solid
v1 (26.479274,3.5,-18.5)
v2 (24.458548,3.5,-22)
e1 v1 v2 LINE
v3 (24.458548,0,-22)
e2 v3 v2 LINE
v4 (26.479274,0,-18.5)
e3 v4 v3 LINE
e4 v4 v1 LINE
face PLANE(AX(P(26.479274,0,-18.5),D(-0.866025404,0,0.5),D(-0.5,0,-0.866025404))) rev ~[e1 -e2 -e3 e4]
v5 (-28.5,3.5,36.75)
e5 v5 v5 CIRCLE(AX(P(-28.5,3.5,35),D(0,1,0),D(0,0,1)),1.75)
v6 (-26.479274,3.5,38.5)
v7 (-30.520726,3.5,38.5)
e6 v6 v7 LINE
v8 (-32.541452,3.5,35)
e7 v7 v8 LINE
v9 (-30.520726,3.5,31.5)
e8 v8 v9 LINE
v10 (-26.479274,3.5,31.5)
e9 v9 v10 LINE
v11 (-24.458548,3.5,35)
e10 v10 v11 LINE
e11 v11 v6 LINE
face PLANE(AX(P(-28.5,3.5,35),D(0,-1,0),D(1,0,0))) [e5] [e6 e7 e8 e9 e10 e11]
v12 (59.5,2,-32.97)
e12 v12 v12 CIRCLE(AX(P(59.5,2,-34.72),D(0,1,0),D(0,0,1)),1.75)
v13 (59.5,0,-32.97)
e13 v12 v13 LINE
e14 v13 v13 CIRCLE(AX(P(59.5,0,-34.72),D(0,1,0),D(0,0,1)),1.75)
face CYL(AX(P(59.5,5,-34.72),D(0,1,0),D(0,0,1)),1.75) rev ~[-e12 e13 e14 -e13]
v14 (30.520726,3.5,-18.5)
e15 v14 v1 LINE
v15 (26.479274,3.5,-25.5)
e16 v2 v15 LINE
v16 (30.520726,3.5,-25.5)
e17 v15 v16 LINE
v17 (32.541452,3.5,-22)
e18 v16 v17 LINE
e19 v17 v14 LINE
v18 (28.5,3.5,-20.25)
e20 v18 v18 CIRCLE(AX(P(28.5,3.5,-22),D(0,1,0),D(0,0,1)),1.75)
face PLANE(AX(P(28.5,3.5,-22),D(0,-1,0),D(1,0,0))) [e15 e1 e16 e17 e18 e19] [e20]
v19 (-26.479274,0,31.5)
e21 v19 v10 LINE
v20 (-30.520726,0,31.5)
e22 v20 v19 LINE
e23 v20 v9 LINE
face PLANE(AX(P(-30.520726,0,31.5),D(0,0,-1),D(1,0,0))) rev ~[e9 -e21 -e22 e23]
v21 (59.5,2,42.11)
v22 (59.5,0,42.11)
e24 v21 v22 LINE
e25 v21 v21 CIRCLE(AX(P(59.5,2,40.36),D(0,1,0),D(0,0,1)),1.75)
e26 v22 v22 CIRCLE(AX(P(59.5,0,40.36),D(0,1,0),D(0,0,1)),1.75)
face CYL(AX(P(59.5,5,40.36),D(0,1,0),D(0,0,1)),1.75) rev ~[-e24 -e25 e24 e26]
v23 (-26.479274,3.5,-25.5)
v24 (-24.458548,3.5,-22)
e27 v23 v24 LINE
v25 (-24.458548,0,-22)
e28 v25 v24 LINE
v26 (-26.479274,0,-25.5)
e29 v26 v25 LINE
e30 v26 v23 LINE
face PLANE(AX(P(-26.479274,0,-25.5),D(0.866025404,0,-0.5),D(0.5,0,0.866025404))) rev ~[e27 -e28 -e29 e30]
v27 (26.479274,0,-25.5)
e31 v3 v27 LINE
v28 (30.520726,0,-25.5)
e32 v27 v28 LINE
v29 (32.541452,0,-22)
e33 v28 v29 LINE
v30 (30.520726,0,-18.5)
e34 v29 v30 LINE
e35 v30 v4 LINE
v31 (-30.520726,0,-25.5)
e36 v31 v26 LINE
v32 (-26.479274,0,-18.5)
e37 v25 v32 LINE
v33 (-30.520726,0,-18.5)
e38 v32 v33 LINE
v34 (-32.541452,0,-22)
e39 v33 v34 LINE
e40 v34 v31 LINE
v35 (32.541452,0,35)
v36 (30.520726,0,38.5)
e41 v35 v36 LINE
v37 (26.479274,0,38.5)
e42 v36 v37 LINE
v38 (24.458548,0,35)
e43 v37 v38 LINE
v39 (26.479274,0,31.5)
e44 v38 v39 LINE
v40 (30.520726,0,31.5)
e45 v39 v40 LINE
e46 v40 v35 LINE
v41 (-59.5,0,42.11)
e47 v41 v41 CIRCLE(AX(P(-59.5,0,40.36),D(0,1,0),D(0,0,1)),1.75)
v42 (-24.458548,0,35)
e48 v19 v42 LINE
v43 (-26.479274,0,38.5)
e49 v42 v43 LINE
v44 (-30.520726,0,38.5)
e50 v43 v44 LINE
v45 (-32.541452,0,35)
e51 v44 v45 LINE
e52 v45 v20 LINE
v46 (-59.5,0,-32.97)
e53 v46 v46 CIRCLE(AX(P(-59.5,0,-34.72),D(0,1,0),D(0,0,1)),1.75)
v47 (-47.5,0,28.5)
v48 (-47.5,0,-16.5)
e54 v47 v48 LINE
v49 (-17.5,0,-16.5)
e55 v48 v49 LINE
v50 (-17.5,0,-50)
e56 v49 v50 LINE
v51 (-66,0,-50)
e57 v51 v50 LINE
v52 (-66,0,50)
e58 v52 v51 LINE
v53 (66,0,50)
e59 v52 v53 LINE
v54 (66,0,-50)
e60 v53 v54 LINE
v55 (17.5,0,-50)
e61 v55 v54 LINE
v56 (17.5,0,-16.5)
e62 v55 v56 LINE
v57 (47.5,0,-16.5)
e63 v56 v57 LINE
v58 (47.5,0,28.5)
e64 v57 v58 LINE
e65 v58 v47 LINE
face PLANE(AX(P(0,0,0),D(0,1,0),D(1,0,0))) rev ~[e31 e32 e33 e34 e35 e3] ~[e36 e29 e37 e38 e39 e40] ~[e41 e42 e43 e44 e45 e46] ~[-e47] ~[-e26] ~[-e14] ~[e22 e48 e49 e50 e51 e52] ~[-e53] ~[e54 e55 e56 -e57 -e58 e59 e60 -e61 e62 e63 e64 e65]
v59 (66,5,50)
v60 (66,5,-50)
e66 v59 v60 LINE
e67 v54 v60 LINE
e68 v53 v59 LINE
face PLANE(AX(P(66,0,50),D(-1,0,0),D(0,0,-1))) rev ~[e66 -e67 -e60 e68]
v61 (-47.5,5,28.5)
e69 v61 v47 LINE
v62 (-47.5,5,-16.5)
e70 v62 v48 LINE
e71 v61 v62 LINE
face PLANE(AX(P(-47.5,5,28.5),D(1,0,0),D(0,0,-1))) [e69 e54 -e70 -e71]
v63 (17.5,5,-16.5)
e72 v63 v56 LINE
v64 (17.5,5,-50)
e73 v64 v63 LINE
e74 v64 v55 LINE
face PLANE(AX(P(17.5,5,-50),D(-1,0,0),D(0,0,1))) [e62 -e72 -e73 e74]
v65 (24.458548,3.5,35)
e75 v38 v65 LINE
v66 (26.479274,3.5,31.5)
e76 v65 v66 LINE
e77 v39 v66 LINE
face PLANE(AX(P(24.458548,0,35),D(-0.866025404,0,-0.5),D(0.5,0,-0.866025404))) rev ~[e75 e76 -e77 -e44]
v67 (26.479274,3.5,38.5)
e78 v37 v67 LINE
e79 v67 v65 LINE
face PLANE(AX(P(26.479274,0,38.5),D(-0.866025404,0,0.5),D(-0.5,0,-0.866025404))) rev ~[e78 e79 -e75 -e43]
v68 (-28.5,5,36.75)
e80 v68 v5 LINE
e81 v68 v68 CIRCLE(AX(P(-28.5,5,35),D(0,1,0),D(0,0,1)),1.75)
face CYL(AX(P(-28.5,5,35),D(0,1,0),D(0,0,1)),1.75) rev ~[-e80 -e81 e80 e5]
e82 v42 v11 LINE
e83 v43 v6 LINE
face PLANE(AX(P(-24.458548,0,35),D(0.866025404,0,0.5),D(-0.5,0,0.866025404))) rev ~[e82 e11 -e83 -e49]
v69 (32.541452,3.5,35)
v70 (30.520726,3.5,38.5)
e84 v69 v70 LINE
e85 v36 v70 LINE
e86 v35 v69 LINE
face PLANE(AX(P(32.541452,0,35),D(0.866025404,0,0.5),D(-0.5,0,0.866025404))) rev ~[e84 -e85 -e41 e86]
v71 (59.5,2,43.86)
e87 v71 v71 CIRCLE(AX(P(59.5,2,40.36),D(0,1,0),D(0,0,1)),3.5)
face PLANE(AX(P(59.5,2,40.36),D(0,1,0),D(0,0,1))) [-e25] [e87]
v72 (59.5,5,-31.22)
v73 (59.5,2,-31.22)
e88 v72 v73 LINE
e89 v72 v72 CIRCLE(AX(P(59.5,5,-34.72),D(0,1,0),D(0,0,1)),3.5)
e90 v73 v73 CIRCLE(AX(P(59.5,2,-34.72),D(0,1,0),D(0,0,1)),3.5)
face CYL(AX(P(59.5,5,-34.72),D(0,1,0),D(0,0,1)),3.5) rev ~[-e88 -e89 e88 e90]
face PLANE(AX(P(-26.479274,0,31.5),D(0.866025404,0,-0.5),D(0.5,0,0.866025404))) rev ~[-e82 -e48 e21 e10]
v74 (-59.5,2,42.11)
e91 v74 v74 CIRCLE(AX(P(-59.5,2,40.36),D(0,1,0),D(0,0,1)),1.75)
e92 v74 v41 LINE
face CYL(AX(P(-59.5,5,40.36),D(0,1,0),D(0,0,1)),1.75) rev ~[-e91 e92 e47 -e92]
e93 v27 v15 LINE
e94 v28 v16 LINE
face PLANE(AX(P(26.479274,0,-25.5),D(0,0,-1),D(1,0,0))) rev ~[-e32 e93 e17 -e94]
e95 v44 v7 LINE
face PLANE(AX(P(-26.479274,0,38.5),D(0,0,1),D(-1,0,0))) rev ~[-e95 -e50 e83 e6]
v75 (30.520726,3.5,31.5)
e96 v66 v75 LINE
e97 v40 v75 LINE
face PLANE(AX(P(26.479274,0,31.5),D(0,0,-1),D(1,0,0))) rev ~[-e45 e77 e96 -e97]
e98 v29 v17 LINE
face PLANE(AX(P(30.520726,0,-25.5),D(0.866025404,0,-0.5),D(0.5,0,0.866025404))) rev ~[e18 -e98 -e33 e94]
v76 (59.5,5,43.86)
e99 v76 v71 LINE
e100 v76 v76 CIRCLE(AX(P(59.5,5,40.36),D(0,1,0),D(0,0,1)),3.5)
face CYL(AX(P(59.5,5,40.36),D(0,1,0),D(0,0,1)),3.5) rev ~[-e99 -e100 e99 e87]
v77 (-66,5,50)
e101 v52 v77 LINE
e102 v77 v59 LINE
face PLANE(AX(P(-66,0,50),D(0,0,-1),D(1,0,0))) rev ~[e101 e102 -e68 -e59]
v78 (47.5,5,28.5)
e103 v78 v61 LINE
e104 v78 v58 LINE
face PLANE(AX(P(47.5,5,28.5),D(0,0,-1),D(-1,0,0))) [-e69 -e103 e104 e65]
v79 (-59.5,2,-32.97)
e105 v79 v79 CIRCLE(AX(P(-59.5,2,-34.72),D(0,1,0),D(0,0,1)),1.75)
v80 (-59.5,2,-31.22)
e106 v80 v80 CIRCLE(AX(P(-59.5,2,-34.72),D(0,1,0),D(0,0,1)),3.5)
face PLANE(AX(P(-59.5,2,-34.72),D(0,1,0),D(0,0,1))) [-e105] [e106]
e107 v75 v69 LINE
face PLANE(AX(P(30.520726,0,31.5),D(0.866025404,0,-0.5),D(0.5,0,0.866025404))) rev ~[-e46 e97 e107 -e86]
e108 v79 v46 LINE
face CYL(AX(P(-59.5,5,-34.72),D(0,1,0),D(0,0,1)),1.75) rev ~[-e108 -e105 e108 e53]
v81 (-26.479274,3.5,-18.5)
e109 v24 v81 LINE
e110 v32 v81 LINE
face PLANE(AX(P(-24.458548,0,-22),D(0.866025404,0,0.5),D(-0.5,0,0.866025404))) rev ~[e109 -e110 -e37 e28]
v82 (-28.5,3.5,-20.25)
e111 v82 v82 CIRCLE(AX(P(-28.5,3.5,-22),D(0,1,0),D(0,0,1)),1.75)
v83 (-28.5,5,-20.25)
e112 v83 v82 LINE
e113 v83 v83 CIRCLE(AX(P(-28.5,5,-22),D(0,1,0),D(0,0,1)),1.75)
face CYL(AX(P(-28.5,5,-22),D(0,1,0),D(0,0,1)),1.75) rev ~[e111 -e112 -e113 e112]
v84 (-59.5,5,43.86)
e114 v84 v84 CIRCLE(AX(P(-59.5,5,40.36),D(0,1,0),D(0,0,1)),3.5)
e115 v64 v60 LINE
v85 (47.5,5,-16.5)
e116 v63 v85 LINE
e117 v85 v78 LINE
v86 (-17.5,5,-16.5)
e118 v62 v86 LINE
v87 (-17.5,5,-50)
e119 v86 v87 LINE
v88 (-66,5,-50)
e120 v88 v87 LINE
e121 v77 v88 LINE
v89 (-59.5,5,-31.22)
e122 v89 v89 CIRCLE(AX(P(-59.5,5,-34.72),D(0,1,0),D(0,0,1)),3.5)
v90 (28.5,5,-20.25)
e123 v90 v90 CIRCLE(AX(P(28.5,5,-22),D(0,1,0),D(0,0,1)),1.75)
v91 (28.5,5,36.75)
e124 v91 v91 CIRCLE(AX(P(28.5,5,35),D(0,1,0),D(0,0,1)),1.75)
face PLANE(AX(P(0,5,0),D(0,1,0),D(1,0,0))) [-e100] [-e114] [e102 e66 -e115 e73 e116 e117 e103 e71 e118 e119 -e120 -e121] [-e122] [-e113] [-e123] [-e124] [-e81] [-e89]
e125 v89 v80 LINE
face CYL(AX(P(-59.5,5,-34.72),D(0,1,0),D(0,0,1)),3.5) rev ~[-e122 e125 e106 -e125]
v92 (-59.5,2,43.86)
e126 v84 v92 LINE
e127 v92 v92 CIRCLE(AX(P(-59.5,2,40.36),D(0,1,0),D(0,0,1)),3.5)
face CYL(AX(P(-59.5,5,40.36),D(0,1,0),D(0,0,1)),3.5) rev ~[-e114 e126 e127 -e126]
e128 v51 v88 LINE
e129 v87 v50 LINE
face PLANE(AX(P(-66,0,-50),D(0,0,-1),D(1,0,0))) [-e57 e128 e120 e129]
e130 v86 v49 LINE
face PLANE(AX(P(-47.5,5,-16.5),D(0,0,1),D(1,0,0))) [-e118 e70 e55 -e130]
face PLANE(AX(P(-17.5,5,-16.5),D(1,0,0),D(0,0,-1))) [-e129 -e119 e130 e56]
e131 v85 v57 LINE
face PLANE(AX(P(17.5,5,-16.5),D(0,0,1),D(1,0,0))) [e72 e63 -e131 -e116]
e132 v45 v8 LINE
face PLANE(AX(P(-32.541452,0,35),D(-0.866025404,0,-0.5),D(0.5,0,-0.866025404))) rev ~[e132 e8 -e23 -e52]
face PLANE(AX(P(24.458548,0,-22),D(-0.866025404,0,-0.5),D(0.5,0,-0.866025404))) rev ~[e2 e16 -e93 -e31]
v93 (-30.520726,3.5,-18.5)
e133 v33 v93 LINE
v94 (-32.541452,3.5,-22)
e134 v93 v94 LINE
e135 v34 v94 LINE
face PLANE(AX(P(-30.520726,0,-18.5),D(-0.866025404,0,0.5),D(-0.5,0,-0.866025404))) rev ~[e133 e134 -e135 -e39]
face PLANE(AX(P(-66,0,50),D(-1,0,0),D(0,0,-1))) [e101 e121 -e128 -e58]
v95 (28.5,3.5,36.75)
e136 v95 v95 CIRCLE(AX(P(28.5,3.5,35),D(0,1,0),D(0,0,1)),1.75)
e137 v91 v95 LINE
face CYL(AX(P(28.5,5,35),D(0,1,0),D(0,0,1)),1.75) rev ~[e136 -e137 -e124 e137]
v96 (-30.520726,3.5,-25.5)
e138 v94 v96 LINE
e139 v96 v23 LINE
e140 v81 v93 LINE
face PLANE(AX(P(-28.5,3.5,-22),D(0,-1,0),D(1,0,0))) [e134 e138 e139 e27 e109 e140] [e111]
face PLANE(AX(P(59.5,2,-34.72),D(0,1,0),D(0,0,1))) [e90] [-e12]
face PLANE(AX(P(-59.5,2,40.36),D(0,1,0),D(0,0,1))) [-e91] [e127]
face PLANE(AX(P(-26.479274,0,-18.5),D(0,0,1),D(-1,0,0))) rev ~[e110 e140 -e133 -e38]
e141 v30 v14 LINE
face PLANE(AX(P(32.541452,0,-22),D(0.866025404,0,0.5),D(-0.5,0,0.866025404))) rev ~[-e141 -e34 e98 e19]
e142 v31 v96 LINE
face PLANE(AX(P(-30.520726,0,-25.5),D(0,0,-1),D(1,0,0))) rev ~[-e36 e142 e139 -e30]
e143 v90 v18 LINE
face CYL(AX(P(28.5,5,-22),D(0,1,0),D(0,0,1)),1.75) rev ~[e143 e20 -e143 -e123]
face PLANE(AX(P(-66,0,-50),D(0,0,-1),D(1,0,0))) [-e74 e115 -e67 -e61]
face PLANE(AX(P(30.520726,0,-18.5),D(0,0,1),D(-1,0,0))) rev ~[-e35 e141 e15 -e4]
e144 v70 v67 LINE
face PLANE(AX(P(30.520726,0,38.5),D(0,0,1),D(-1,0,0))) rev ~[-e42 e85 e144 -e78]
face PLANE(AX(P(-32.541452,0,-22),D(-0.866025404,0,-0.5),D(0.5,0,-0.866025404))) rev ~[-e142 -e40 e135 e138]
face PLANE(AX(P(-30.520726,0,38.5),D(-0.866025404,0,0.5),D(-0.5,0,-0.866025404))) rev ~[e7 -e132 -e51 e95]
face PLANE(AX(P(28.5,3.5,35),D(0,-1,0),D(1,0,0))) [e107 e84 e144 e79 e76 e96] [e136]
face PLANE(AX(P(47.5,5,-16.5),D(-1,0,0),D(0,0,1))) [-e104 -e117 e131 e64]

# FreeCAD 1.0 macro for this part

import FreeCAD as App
import Part
import Sketcher
Q = App.Units.Quantity


def add_polygon(sketch, points):
    """Adds a closed chain of lines whose ends are joined by coincident constraints."""
    first, n = sketch.GeometryCount, len(points)
    for a, b in zip(points, points[1:] + points[:1]):
        sketch.addGeometry(Part.LineSegment(App.Vector(*a, 0), App.Vector(*b, 0)), False)
    for i in range(n):
        sketch.addConstraint(Sketcher.Constraint("Coincident", first + i, 2, first + (i + 1) % n, 1))

doc = App.newDocument("Part")
body = doc.addObject("PartDesign::Body", "Body")

# Sketch on XZ plane
sketch1 = body.newObject("Sketcher::SketchObject", "Sketch")
sketch1.AttachmentSupport = (doc.getObject("XZ_Plane"), [""])
sketch1.MapMode = "FlatFace"
add_polygon(sketch1, [(-66, -50), (-66, 50), (66, 50), (66, -50)])  # lines 0-3
sketch1.addConstraint(Sketcher.Constraint("Vertical", 0))
sketch1.addConstraint(Sketcher.Constraint("Horizontal", 1))
sketch1.addConstraint(Sketcher.Constraint("Vertical", 2))
sketch1.addConstraint(Sketcher.Constraint("Horizontal", 3))
sketch1.addConstraint(Sketcher.Constraint("Symmetric", 0, 2, 2, 2, -1, 1))
sketch1.addConstraint(Sketcher.Constraint("DistanceX", 1, 1, 1, 2, 132.0))
sketch1.addConstraint(Sketcher.Constraint("DistanceY", 0, 1, 0, 2, 100.0))
pad1 = body.newObject("PartDesign::Pad", "Pad")
pad1.Profile = sketch1
pad1.Length = 5
pad1.Reversed = True

# Sketch on XZ plane
sketch2 = body.newObject("Sketcher::SketchObject", "Sketch001")
sketch2.AttachmentSupport = (doc.getObject("XZ_Plane"), [""])
sketch2.MapMode = "FlatFace"
sketch2.AttachmentOffset = App.Placement(App.Vector(0, 0, -5), App.Rotation())
sketch2.addGeometry(Part.Circle(App.Vector(-59.5, -34.7, 0), App.Vector(0, 0, 1), 1.8), False)
sketch2.addGeometry(Part.Circle(App.Vector(-59.5, 40.4, 0), App.Vector(0, 0, 1), 1.8), False)
sketch2.addGeometry(Part.Circle(App.Vector(59.5, 40.4, 0), App.Vector(0, 0, 1), 1.8), False)
sketch2.addGeometry(Part.Circle(App.Vector(59.5, -34.7, 0), App.Vector(0, 0, 1), 1.8), False)
sketch2.addConstraint(Sketcher.Constraint("Equal", 0, 1))
sketch2.addConstraint(Sketcher.Constraint("Equal", 1, 2))
sketch2.addConstraint(Sketcher.Constraint("Equal", 2, 3))
sketch2.addConstraint(Sketcher.Constraint("Symmetric", 1, 3, 2, 3, -2))
sketch2.addConstraint(Sketcher.Constraint("Symmetric", 0, 3, 3, 3, -2))
sketch2.addConstraint(Sketcher.Constraint("Vertical", 0, 3, 1, 3))
sketch2.addConstraint(Sketcher.Constraint("Diameter", 0, 3.5))
sketch2.addConstraint(Sketcher.Constraint("DistanceX", 1, 3, 2, 3, 119.0))
sketch2.addConstraint(Sketcher.Constraint("DistanceY", 0, 3, -1, 1, 34.72))
sketch2.addConstraint(Sketcher.Constraint("DistanceY", -1, 1, 1, 3, 40.36))
pocket1 = body.newObject("PartDesign::Pocket", "Pocket")
pocket1.Profile = sketch2
pocket1.Length = 56
pocket1.Reversed = True

# Sketch on XZ plane
sketch3 = body.newObject("Sketcher::SketchObject", "Sketch002")
sketch3.AttachmentSupport = (doc.getObject("XZ_Plane"), [""])
sketch3.MapMode = "FlatFace"
sketch3.AttachmentOffset = App.Placement(App.Vector(0, 0, -5), App.Rotation())
add_polygon(sketch3, [(18, -50), (-18, -50), (-18, -16), (-48, -16), (-48, 28), (48, 28), (48, -16), (18, -16)])  # lines 0-7
sketch3.addConstraint(Sketcher.Constraint("Horizontal", 0))
sketch3.addConstraint(Sketcher.Constraint("Vertical", 1))
sketch3.addConstraint(Sketcher.Constraint("Horizontal", 2))
sketch3.addConstraint(Sketcher.Constraint("Vertical", 3))
sketch3.addConstraint(Sketcher.Constraint("Horizontal", 4))
sketch3.addConstraint(Sketcher.Constraint("Vertical", 5))
sketch3.addConstraint(Sketcher.Constraint("Horizontal", 6))
sketch3.addConstraint(Sketcher.Constraint("Vertical", 7))
sketch3.addConstraint(Sketcher.Constraint("Symmetric", 2, 2, 5, 2, -2))
sketch3.addConstraint(Sketcher.Constraint("Equal", 2, 6))
sketch3.addConstraint(Sketcher.Constraint("DistanceX", 0, 2, 0, 1, 35.0))
sketch3.addConstraint(Sketcher.Constraint("DistanceX", 2, 2, 2, 1, 30.0))
sketch3.addConstraint(Sketcher.Constraint("DistanceY", 3, 1, 3, 2, 45.0))
sketch3.addConstraint(Sketcher.Constraint("DistanceY", 1, 1, 1, 2, 33.5))
sketch3.addConstraint(Sketcher.Constraint("DistanceY", 0, 2, -1, 1, 50.0))
pocket2 = body.newObject("PartDesign::Pocket", "Pocket001")
pocket2.Profile = sketch3
pocket2.Length = 103
pocket2.Reversed = True

# Sketch on XZ plane
sketch4 = body.newObject("Sketcher::SketchObject", "Sketch003")
sketch4.AttachmentSupport = (doc.getObject("XZ_Plane"), [""])
sketch4.MapMode = "FlatFace"
sketch4.AttachmentOffset = App.Placement(App.Vector(0, 0, -5), App.Rotation())
sketch4.addGeometry(Part.Circle(App.Vector(-28.5, -22, 0), App.Vector(0, 0, 1), 1.8), False)
sketch4.addGeometry(Part.Circle(App.Vector(-28.5, 35, 0), App.Vector(0, 0, 1), 1.8), False)
sketch4.addGeometry(Part.Circle(App.Vector(28.5, 35, 0), App.Vector(0, 0, 1), 1.8), False)
sketch4.addGeometry(Part.Circle(App.Vector(28.5, -22, 0), App.Vector(0, 0, 1), 1.8), False)
sketch4.addConstraint(Sketcher.Constraint("Equal", 0, 1))
sketch4.addConstraint(Sketcher.Constraint("Equal", 1, 2))
sketch4.addConstraint(Sketcher.Constraint("Equal", 2, 3))
sketch4.addConstraint(Sketcher.Constraint("Symmetric", 1, 3, 2, 3, -2))
sketch4.addConstraint(Sketcher.Constraint("Symmetric", 0, 3, 3, 3, -2))
sketch4.addConstraint(Sketcher.Constraint("Vertical", 0, 3, 1, 3))
sketch4.addConstraint(Sketcher.Constraint("Diameter", 0, 3.5))
sketch4.addConstraint(Sketcher.Constraint("DistanceY", 0, 3, -1, 1, 22.0))
sketch4.addConstraint(Sketcher.Constraint("DistanceY", -1, 1, 1, 3, 35.0))
sketch4.addConstraint(Sketcher.Constraint("DistanceX", 1, 3, 2, 3, 57.0))
pocket3 = body.newObject("PartDesign::Pocket", "Pocket002")
pocket3.Profile = sketch4
pocket3.Length = 103
pocket3.Reversed = True

# Sketch on XZ plane
sketch5 = body.newObject("Sketcher::SketchObject", "Sketch004")
sketch5.AttachmentSupport = (doc.getObject("XZ_Plane"), [""])
sketch5.MapMode = "FlatFace"
sketch5.AttachmentOffset = App.Placement(App.Vector(0, 0, -5), App.Rotation())
sketch5.addGeometry(Part.Circle(App.Vector(-59.5, -34.7, 0), App.Vector(0, 0, 1), 3.5), False)
sketch5.addGeometry(Part.Circle(App.Vector(-59.5, 40.4, 0), App.Vector(0, 0, 1), 3.5), False)
sketch5.addGeometry(Part.Circle(App.Vector(59.5, 40.4, 0), App.Vector(0, 0, 1), 3.5), False)
sketch5.addGeometry(Part.Circle(App.Vector(59.5, -34.7, 0), App.Vector(0, 0, 1), 3.5), False)
sketch5.addConstraint(Sketcher.Constraint("Equal", 0, 1))
sketch5.addConstraint(Sketcher.Constraint("Equal", 1, 2))
sketch5.addConstraint(Sketcher.Constraint("Equal", 2, 3))
sketch5.addConstraint(Sketcher.Constraint("Symmetric", 1, 3, 2, 3, -2))
sketch5.addConstraint(Sketcher.Constraint("Symmetric", 0, 3, 3, 3, -2))
sketch5.addConstraint(Sketcher.Constraint("Vertical", 0, 3, 1, 3))
sketch5.addConstraint(Sketcher.Constraint("Diameter", 0, 7.0))
sketch5.addConstraint(Sketcher.Constraint("DistanceX", 1, 3, 2, 3, 119.0))
sketch5.addConstraint(Sketcher.Constraint("DistanceY", 0, 3, -1, 1, 34.72))
sketch5.addConstraint(Sketcher.Constraint("DistanceY", -1, 1, 1, 3, 40.36))
pocket4 = body.newObject("PartDesign::Pocket", "Pocket003")
pocket4.Profile = sketch5
pocket4.Length = 3
pocket4.Reversed = True

# Sketch on XZ plane
sketch6 = body.newObject("Sketcher::SketchObject", "Sketch005")
sketch6.AttachmentSupport = (doc.getObject("XZ_Plane"), [""])
sketch6.MapMode = "FlatFace"
add_polygon(sketch6, [(26.5, -25.5), (30.5, -25.5), (32.5, -22), (30.5, -18.5), (26.5, -18.5), (24.5, -22)])  # lines 0-5
add_polygon(sketch6, [(24.5, 35), (26.5, 31.5), (30.5, 31.5), (32.5, 35), (30.5, 38.5), (26.5, 38.5)])  # lines 6-11
add_polygon(sketch6, [(-30.5, 38.5), (-32.5, 35), (-30.5, 31.5), (-26.5, 31.5), (-24.5, 35), (-26.5, 38.5)])  # lines 12-17
add_polygon(sketch6, [(-32.5, -22), (-30.5, -25.5), (-26.5, -25.5), (-24.5, -22), (-26.5, -18.5), (-30.5, -18.5)])  # lines 18-23
sketch6.addConstraint(Sketcher.Constraint("Horizontal", 0))
sketch6.addConstraint(Sketcher.Constraint("Horizontal", 3))
sketch6.addConstraint(Sketcher.Constraint("Horizontal", 7))
sketch6.addConstraint(Sketcher.Constraint("Horizontal", 10))
sketch6.addConstraint(Sketcher.Constraint("Horizontal", 14))
sketch6.addConstraint(Sketcher.Constraint("Horizontal", 17))
sketch6.addConstraint(Sketcher.Constraint("Horizontal", 19))
sketch6.addConstraint(Sketcher.Constraint("Horizontal", 22))
sketch6.addConstraint(Sketcher.Constraint("Symmetric", 8, 2, 12, 2, -2))
sketch6.addConstraint(Sketcher.Constraint("Symmetric", 7, 2, 13, 2, -2))
sketch6.addConstraint(Sketcher.Constraint("Symmetric", 11, 2, 15, 2, -2))
sketch6.addConstraint(Sketcher.Constraint("Symmetric", 10, 2, 16, 2, -2))
sketch6.addConstraint(Sketcher.Constraint("Symmetric", 0, 2, 18, 2, -2))
sketch6.addConstraint(Sketcher.Constraint("Symmetric", 4, 2, 20, 2, -2))
sketch6.addConstraint(Sketcher.Constraint("Symmetric", 3, 2, 21, 2, -2))
sketch6.addConstraint(Sketcher.Constraint("Symmetric", 1, 2, 23, 2, -2))
sketch6.addConstraint(Sketcher.Constraint("Parallel", 1, 4))
sketch6.addConstraint(Sketcher.Constraint("Parallel", 2, 5))
sketch6.addConstraint(Sketcher.Constraint("Parallel", 5, 6))
sketch6.addConstraint(Sketcher.Constraint("Parallel", 4, 8))
sketch6.addConstraint(Sketcher.Constraint("Parallel", 6, 9))
sketch6.addConstraint(Sketcher.Constraint("Parallel", 8, 11))
sketch6.addConstraint(Sketcher.Constraint("Parallel", 11, 12))
sketch6.addConstraint(Sketcher.Constraint("Parallel", 9, 13))
sketch6.addConstraint(Sketcher.Constraint("Parallel", 12, 15))
sketch6.addConstraint(Sketcher.Constraint("Parallel", 15, 20))
sketch6.addConstraint(Sketcher.Constraint("Parallel", 20, 23))
sketch6.addConstraint(Sketcher.Constraint("Horizontal", 1, 2, 4, 2))
sketch6.addConstraint(Sketcher.Constraint("Horizontal", 8, 2, 11, 2))
sketch6.addConstraint(Sketcher.Constraint("Vertical", 0, 2, 2, 2))
sketch6.addConstraint(Sketcher.Constraint("Vertical", 5, 2, 6, 2))
sketch6.addConstraint(Sketcher.Constraint("Vertical", 2, 2, 7, 2))
sketch6.addConstraint(Sketcher.Constraint("Vertical", 1, 2, 8, 2))
sketch6.addConstraint(Sketcher.Constraint("Vertical", 7, 2, 9, 2))
sketch6.addConstraint(Sketcher.Constraint("Angle", 1, Q("60 deg")))
sketch6.addConstraint(Sketcher.Constraint("DistanceY", 1, 2, -1, 1, 22.0))
sketch6.addConstraint(Sketcher.Constraint("DistanceY", -1, 1, 8, 2, 35.0))
sketch6.addConstraint(Sketcher.Constraint("DistanceY", 0, 2, 2, 2, 7.0))
sketch6.addConstraint(Sketcher.Constraint("DistanceX", 12, 2, 11, 2, 57.0))
sketch6.addConstraint(Sketcher.Constraint("DistanceX", 0, 1, 0, 2, 4.041452))
pocket5 = body.newObject("PartDesign::Pocket", "Pocket004")
pocket5.Profile = sketch6
pocket5.Length = 3.5

doc.recompute()
